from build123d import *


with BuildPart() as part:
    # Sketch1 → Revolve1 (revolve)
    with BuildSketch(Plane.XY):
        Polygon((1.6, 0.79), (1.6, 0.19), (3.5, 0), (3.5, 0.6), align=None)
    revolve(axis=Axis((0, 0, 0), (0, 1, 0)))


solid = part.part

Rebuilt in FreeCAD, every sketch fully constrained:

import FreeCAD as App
import Part
import Sketcher
from FreeCAD import Vector


def add_polygon(sketch, points):
    """Adds a closed chain of lines whose ends are joined by coincident constraints."""
    first, n = sketch.GeometryCount, len(points)
    for a, b in zip(points, points[1:] + points[:1]):
        sketch.addGeometry(Part.LineSegment(App.Vector(*a, 0), App.Vector(*b, 0)), False)
    for i in range(n):
        sketch.addConstraint(Sketcher.Constraint("Coincident", first + i, 2, first + (i + 1) % n, 1))

doc = App.newDocument("Part")
body = doc.addObject("PartDesign::Body", "Body")

# Sketch on XY plane
sketch1 = body.newObject("Sketcher::SketchObject", "Sketch")
sketch1.AttachmentSupport = (doc.getObject("XY_Plane"), [""])
sketch1.MapMode = "FlatFace"
add_polygon(sketch1, [(1.6, 0.8), (1.6, 0.2), (3.5, 0), (3.5, 0.6)])  # lines 0-3
sketch1.addConstraint([
    Sketcher.Constraint("Vertical", 0),
    Sketcher.Constraint("Vertical", 2),
    Sketcher.Constraint("PointOnObject", 1, 2, -1),
    Sketcher.Constraint("Parallel", 1, 3),
    Sketcher.Constraint("DistanceY", 0, 2, 0, 1, 0.6),
    Sketcher.Constraint("DistanceX", -1, 1, 0, 2, 1.6),
    Sketcher.Constraint("DistanceX", -1, 1, 1, 2, 3.5),
    Sketcher.Constraint("DistanceY", -1, 1, 0, 2, 0.19),
])
revolution = body.newObject("PartDesign::Revolution", "Revolution")
revolution.Profile = sketch1
revolution.ReferenceAxis = (sketch1, ["V_Axis"])
revolution.Angle = 360

doc.recompute()
